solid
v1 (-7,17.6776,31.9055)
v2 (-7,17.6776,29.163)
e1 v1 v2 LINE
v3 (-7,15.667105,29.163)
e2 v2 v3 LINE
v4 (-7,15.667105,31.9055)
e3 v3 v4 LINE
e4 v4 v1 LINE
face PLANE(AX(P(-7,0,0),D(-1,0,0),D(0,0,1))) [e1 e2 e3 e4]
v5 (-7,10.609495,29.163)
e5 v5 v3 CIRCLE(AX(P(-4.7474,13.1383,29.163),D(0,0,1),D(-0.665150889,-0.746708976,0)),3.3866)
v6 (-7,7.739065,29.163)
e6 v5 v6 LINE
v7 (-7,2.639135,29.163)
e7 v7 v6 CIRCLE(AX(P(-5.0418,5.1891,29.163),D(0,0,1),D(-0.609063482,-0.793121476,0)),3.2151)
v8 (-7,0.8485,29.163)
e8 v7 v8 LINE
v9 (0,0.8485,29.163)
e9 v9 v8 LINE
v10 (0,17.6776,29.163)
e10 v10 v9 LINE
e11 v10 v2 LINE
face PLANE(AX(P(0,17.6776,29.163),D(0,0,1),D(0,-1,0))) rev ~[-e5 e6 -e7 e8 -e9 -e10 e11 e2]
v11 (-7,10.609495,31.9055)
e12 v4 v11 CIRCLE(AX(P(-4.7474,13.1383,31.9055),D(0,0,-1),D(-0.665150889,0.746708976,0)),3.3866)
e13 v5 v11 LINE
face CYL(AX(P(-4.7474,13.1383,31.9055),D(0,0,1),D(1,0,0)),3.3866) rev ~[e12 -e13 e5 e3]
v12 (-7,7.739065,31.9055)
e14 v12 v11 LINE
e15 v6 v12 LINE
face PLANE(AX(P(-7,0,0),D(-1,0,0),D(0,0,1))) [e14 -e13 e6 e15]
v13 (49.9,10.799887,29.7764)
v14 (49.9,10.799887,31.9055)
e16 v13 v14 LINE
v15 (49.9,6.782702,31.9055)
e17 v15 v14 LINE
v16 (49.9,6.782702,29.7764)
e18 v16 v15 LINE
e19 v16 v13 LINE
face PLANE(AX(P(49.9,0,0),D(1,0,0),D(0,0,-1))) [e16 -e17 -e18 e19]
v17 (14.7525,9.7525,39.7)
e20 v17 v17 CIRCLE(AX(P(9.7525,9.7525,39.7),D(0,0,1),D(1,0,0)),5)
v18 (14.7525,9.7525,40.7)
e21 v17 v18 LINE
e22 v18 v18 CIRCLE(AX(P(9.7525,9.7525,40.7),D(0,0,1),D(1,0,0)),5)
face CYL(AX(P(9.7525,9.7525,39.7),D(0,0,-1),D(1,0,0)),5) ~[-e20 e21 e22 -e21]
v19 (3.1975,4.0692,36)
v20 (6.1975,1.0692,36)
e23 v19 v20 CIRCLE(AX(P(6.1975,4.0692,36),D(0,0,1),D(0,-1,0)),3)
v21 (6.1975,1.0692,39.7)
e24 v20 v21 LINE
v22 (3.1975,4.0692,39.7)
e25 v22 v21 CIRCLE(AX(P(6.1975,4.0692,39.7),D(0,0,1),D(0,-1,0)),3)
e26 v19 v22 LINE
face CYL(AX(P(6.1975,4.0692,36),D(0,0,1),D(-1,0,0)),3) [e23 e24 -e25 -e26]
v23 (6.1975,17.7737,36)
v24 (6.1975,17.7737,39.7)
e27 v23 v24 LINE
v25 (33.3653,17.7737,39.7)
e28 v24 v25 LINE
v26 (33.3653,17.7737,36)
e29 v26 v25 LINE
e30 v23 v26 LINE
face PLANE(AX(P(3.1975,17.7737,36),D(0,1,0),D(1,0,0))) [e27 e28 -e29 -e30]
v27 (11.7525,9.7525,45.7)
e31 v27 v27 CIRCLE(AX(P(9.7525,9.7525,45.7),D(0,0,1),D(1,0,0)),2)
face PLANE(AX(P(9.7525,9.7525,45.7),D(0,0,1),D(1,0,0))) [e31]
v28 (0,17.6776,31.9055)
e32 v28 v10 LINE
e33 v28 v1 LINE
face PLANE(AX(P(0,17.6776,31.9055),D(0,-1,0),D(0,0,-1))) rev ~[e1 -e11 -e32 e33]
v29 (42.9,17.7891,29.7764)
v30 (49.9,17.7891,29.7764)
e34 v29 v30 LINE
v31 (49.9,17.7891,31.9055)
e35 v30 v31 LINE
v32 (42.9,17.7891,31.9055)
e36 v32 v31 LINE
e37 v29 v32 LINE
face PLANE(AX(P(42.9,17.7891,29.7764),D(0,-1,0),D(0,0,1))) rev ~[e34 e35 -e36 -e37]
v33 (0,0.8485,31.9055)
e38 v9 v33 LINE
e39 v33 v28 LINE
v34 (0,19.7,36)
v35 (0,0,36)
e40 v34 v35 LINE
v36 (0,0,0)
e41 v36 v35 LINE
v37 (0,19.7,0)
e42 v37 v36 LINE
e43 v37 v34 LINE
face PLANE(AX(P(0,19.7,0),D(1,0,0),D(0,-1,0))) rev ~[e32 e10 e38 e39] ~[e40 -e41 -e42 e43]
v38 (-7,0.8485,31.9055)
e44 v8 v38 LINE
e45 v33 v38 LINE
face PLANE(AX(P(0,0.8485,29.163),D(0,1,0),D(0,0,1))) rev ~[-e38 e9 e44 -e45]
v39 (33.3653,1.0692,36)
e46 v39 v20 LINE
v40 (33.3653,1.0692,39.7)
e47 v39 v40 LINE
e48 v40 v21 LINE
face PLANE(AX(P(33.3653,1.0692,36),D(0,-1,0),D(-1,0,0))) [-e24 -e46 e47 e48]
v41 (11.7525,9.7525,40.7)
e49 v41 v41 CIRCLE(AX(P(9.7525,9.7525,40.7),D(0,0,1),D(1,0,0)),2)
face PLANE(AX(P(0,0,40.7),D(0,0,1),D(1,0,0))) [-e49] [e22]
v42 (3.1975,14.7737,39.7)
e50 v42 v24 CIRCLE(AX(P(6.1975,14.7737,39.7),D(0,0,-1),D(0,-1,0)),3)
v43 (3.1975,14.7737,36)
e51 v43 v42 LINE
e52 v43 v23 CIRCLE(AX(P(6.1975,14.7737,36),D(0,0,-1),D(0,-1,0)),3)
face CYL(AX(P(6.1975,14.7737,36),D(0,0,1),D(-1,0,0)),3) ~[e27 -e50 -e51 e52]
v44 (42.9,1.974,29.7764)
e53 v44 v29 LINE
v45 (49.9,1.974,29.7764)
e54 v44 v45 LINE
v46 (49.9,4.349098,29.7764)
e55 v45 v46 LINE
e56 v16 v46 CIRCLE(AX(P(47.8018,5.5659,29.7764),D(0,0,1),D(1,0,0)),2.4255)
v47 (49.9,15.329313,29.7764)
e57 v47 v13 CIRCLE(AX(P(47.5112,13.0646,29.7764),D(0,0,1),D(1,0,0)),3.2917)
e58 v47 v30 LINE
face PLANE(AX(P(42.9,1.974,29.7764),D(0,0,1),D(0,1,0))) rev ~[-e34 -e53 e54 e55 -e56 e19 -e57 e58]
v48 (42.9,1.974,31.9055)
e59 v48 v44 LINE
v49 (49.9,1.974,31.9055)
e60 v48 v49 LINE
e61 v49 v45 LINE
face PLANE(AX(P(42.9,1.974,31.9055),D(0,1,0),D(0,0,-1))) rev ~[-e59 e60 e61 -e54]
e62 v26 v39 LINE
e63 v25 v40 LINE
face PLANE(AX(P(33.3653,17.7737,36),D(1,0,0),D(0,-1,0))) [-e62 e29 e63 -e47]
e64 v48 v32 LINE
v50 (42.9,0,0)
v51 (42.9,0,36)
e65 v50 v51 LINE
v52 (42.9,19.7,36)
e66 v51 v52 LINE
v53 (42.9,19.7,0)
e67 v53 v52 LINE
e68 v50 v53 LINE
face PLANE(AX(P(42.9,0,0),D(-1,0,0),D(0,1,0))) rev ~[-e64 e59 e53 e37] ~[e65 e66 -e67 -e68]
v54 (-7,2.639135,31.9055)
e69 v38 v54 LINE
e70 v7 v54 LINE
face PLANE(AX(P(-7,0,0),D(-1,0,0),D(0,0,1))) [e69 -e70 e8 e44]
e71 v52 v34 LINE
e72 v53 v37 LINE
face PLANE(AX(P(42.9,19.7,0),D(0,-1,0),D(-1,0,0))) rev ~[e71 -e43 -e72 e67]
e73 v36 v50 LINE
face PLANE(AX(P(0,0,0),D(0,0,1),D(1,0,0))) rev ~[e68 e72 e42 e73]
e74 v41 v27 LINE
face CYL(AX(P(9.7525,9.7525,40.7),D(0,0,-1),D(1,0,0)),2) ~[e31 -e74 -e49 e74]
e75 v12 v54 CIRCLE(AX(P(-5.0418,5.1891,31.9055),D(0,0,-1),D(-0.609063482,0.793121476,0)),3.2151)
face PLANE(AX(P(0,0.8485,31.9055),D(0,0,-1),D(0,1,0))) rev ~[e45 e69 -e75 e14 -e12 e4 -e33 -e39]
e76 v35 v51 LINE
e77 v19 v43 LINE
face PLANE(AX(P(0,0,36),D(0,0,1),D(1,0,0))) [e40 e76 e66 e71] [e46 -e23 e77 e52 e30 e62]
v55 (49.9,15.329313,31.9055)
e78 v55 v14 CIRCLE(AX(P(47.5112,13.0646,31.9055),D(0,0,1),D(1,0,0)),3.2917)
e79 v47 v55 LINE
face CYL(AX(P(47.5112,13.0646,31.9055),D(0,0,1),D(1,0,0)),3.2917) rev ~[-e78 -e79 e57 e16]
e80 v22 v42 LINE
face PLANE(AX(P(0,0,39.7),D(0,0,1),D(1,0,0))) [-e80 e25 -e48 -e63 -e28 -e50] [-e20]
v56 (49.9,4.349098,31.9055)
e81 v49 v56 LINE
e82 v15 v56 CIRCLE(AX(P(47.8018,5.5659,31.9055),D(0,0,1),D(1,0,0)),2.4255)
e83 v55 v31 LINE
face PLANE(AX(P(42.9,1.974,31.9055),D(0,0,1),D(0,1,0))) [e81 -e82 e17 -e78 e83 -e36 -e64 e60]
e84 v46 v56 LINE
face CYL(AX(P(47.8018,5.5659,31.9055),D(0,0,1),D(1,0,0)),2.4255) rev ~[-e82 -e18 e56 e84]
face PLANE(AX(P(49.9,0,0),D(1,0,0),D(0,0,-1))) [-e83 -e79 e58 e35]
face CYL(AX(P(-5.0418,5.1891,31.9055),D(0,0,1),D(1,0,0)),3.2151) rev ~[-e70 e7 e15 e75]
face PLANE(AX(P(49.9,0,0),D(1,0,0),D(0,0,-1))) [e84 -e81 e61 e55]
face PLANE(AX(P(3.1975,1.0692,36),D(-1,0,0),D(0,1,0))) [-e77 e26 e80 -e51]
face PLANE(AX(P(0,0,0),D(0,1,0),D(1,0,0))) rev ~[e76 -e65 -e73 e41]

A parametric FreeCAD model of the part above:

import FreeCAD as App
import Part
import Sketcher

V = App.Vector


def edges_at(feature, points):
    """Names of the edges that pass closest to the given points."""
    edges = feature.Shape.Edges
    near = lambda p: min(range(len(edges)), key=lambda i: edges[i].distToShape(Part.Vertex(*p))[0])
    return sorted({f"Edge{near(p) + 1}" for p in points})


def add_polygon(sketch, points):
    """Adds a closed chain of lines whose ends are joined by coincident constraints."""
    first, n = sketch.GeometryCount, len(points)
    for a, b in zip(points, points[1:] + points[:1]):
        sketch.addGeometry(Part.LineSegment(App.Vector(*a, 0), App.Vector(*b, 0)), False)
    for i in range(n):
        sketch.addConstraint(Sketcher.Constraint("Coincident", first + i, 2, first + (i + 1) % n, 1))

doc = App.newDocument("Part")
params = doc.addObject("Spreadsheet::Sheet", "Params")
for row, (alias, value) in enumerate([
    ("sketch1_width", "42.9 mm"),
    ("sketch1_height", "19.7 mm"),
    ("pad1_length", "36 mm"),
    ("pad2_length", "3.7 mm"),
    ("fillet_radius", "3 mm"),
    ("fillet2_radius", "3 mm"),
    ("sketch3_diameter", "10 mm"),
    ("pad3_length", "1 mm"),
    ("sketch4_diameter", "4 mm"),
    ("pad4_length", "5 mm"),
    ("pad5_length", "7 mm"),
    ("pocket2_length", "7 mm"),
    ("pad6_length", "7 mm"),
    ("pocket3_length", "7 mm"),
    ("pocket4_length", "7 mm"),
], start=1):
    params.set(f"A{row}", alias)
    params.set(f"B{row}", "=" + value)
    params.setAlias(f"B{row}", alias)

body = doc.addObject("PartDesign::Body", "Body")

sketch1 = doc.addObject("Sketcher::SketchObject", "Sketch")
body.addObject(sketch1)
sketch1.AttachmentSupport = (doc.XY_Plane, [""])
sketch1.MapMode = "FlatFace"
add_polygon(sketch1, [(0, 20), (0, 0), (43, 0), (43, 20)])
sketch1.addConstraint([
    Sketcher.Constraint("Vertical", 0),
    Sketcher.Constraint("Horizontal", 1),
    Sketcher.Constraint("Vertical", 2),
    Sketcher.Constraint("Horizontal", 3),
    Sketcher.Constraint("Coincident", 0, 2, -1, 1),
    Sketcher.Constraint("DistanceX", 1, 1, 1, 2, 42.9),
    Sketcher.Constraint("DistanceY", 0, 2, 0, 1, 19.7),
])
sketch1.setExpression("Constraints[9]", "Params.sketch1_width")
sketch1.setExpression("Constraints[10]", "Params.sketch1_height")
pad1 = doc.addObject("PartDesign::Pad", "Pad")
body.addObject(pad1)
pad1.Profile = sketch1
pad1.setExpression("Length", "Params.pad1_length")

sketch2 = doc.addObject("Sketcher::SketchObject", "Sketch001")
body.addObject(sketch2)
sketch2.AttachmentSupport = (doc.XY_Plane, [""])
sketch2.MapMode = "FlatFace"
sketch2.AttachmentOffset = App.Placement(V(0, 0, 36), App.Rotation())
add_polygon(sketch2, [(33, 18), (3, 18), (3, 1), (33, 1)])
sketch2.addConstraint([
    Sketcher.Constraint("Horizontal", 0),
    Sketcher.Constraint("Vertical", 1),
    Sketcher.Constraint("Horizontal", 2),
    Sketcher.Constraint("Vertical", 3),
    Sketcher.Constraint("DistanceX", 0, 2, 0, 1, 30.1678),
    Sketcher.Constraint("DistanceY", 1, 2, 1, 1, 16.7045),
    Sketcher.Constraint("DistanceX", -1, 1, 0, 2, 3.1975),
    Sketcher.Constraint("DistanceY", -1, 1, 0, 2, 17.7737),
])
pad2 = doc.addObject("PartDesign::Pad", "Pad001")
body.addObject(pad2)
pad2.Profile = sketch2
pad2.setExpression("Length", "Params.pad2_length")
doc.recompute()

fillet = doc.addObject("PartDesign::Fillet", "Fillet")
body.addObject(fillet)
fillet.Base = (pad2, edges_at(pad2, [(3.197, 1.069, 37.85)]))
fillet.setExpression("Radius", "Params.fillet_radius")
doc.recompute()

fillet2 = doc.addObject("PartDesign::Fillet", "Fillet001")
body.addObject(fillet2)
fillet2.Base = (fillet, edges_at(fillet, [(3.197, 17.774, 37.85)]))
fillet2.setExpression("Radius", "Params.fillet2_radius")

sketch3 = doc.addObject("Sketcher::SketchObject", "Sketch002")
body.addObject(sketch3)
sketch3.AttachmentSupport = (doc.XY_Plane, [""])
sketch3.MapMode = "FlatFace"
sketch3.AttachmentOffset = App.Placement(V(0, 0, 39.7), App.Rotation())
sketch3.addGeometry(Part.Circle(V(10, 10, 0), V(0, 0, 1), 5), False)
sketch3.addConstraint([
    Sketcher.Constraint("Diameter", 0, 10.0),
    Sketcher.Constraint("DistanceX", -1, 1, 0, 3, 9.7525),
    Sketcher.Constraint("DistanceY", -1, 1, 0, 3, 9.7525),
])
sketch3.setExpression("Constraints[0]", "Params.sketch3_diameter")
pad3 = doc.addObject("PartDesign::Pad", "Pad002")
body.addObject(pad3)
pad3.Profile = sketch3
pad3.setExpression("Length", "Params.pad3_length")

sketch4 = doc.addObject("Sketcher::SketchObject", "Sketch003")
body.addObject(sketch4)
sketch4.AttachmentSupport = (doc.XY_Plane, [""])
sketch4.MapMode = "FlatFace"
sketch4.AttachmentOffset = App.Placement(V(0, 0, 40.7), App.Rotation())
sketch4.addGeometry(Part.Circle(V(9.8, 9.8, 0), V(0, 0, 1), 2), False)
sketch4.addConstraint([
    Sketcher.Constraint("Diameter", 0, 4.0),
    Sketcher.Constraint("DistanceX", -1, 1, 0, 3, 9.7525),
    Sketcher.Constraint("DistanceY", -1, 1, 0, 3, 9.7525),
])
sketch4.setExpression("Constraints[0]", "Params.sketch4_diameter")
pad4 = doc.addObject("PartDesign::Pad", "Pad003")
body.addObject(pad4)
pad4.Profile = sketch4
pad4.setExpression("Length", "Params.pad4_length")

sketch5 = doc.addObject("Sketcher::SketchObject", "Sketch004")
body.addObject(sketch5)
sketch5.AttachmentSupport = (doc.YZ_Plane, [""])
sketch5.MapMode = "FlatFace"
add_polygon(sketch5, [(0.8, 31.9), (17.7, 31.9), (17.7, 29.2), (0.8, 29.2)])
sketch5.addConstraint([
    Sketcher.Constraint("Horizontal", 0),
    Sketcher.Constraint("Vertical", 1),
    Sketcher.Constraint("Horizontal", 2),
    Sketcher.Constraint("Vertical", 3),
    Sketcher.Constraint("DistanceX", 0, 1, 0, 2, 16.829),
    Sketcher.Constraint("DistanceY", 1, 2, 1, 1, 2.7425),
    Sketcher.Constraint("DistanceY", -1, 1, 1, 2, 29.163),
    Sketcher.Constraint("DistanceX", -1, 1, 0, 2, 17.6776),
])
pad5 = doc.addObject("PartDesign::Pad", "Pad004")
body.addObject(pad5)
pad5.Profile = sketch5
pad5.setExpression("Length", "Params.pad5_length")
pad5.Reversed = True

sketch6 = doc.addObject("Sketcher::SketchObject", "Sketch005")
body.addObject(sketch6)
sketch6.AttachmentSupport = (doc.XY_Plane, [""])
sketch6.MapMode = "FlatFace"
sketch6.AttachmentOffset = App.Placement(V(0, 0, 31.9055), App.Rotation())
sketch6.addGeometry(Part.Circle(V(-4.7, 13.1, 0), V(0, 0, 1), 3.4), False)
sketch6.addConstraint([
    Sketcher.Constraint("Diameter", 0, 6.7732),
    Sketcher.Constraint("DistanceX", 0, 3, -1, 1, 4.7474),
    Sketcher.Constraint("DistanceY", -1, 1, 0, 3, 13.1383),
])
pocket1 = doc.addObject("PartDesign::Pocket", "Pocket")
body.addObject(pocket1)
pocket1.Profile = sketch6
pocket1.Type = "ThroughAll"

sketch7 = doc.addObject("Sketcher::SketchObject", "Sketch006")
body.addObject(sketch7)
sketch7.AttachmentSupport = (doc.XY_Plane, [""])
sketch7.MapMode = "FlatFace"
sketch7.AttachmentOffset = App.Placement(V(0, 0, 31.9055), App.Rotation())
sketch7.addGeometry(Part.Circle(V(-5, 5.2, 0), V(0, 0, 1), 3.2), False)
sketch7.addConstraint([
    Sketcher.Constraint("Diameter", 0, 6.4302),
    Sketcher.Constraint("DistanceY", -1, 1, 0, 3, 5.189),
    Sketcher.Constraint("DistanceX", 0, 3, -1, 1, 5.0418),
])
pocket2 = doc.addObject("PartDesign::Pocket", "Pocket001")
body.addObject(pocket2)
pocket2.Profile = sketch7
pocket2.setExpression("Length", "Params.pocket2_length")

sketch8 = doc.addObject("Sketcher::SketchObject", "Sketch007")
body.addObject(sketch8)
sketch8.AttachmentSupport = (doc.YZ_Plane, [""])
sketch8.MapMode = "FlatFace"
sketch8.AttachmentOffset = App.Placement(V(0, 0, 42.9), App.Rotation())
add_polygon(sketch8, [(17.8, 31.9), (2, 31.9), (2, 29.8), (17.8, 29.8)])
sketch8.addConstraint([
    Sketcher.Constraint("Horizontal", 0),
    Sketcher.Constraint("Vertical", 1),
    Sketcher.Constraint("Horizontal", 2),
    Sketcher.Constraint("Vertical", 3),
    Sketcher.Constraint("DistanceX", 0, 2, 0, 1, 15.815),
    Sketcher.Constraint("DistanceY", 1, 2, 1, 1, 2.129),
    Sketcher.Constraint("DistanceX", -1, 1, 0, 2, 1.974),
    Sketcher.Constraint("DistanceY", -1, 1, 0, 2, 31.9055),
])
pad6 = doc.addObject("PartDesign::Pad", "Pad005")
body.addObject(pad6)
pad6.Profile = sketch8
pad6.setExpression("Length", "Params.pad6_length")

sketch9 = doc.addObject("Sketcher::SketchObject", "Sketch008")
body.addObject(sketch9)
sketch9.AttachmentSupport = (doc.XY_Plane, [""])
sketch9.MapMode = "FlatFace"
sketch9.AttachmentOffset = App.Placement(V(0, 0, 31.9055), App.Rotation())
sketch9.addGeometry(Part.Circle(V(47.8, 5.6, 0), V(0, 0, 1), 2.4), False)
sketch9.addConstraint([
    Sketcher.Constraint("Diameter", 0, 4.851),
    Sketcher.Constraint("DistanceY", -1, 1, 0, 3, 5.566),
    Sketcher.Constraint("DistanceX", -1, 1, 0, 3, 47.8018),
])
pocket3 = doc.addObject("PartDesign::Pocket", "Pocket002")
body.addObject(pocket3)
pocket3.Profile = sketch9
pocket3.setExpression("Length", "Params.pocket3_length")

sketch10 = doc.addObject("Sketcher::SketchObject", "Sketch009")
body.addObject(sketch10)
sketch10.AttachmentSupport = (doc.XY_Plane, [""])
sketch10.MapMode = "FlatFace"
sketch10.AttachmentOffset = App.Placement(V(0, 0, 31.9055), App.Rotation())
sketch10.addGeometry(Part.Circle(V(47.5, 13.1, 0), V(0, 0, 1), 3.3), False)
sketch10.addConstraint([
    Sketcher.Constraint("Diameter", 0, 6.5834),
    Sketcher.Constraint("DistanceX", -1, 1, 0, 3, 47.5112),
    Sketcher.Constraint("DistanceY", -1, 1, 0, 3, 13.0646),
])
pocket4 = doc.addObject("PartDesign::Pocket", "Pocket003")
body.addObject(pocket4)
pocket4.Profile = sketch10
pocket4.setExpression("Length", "Params.pocket4_length")

doc.recompute()
